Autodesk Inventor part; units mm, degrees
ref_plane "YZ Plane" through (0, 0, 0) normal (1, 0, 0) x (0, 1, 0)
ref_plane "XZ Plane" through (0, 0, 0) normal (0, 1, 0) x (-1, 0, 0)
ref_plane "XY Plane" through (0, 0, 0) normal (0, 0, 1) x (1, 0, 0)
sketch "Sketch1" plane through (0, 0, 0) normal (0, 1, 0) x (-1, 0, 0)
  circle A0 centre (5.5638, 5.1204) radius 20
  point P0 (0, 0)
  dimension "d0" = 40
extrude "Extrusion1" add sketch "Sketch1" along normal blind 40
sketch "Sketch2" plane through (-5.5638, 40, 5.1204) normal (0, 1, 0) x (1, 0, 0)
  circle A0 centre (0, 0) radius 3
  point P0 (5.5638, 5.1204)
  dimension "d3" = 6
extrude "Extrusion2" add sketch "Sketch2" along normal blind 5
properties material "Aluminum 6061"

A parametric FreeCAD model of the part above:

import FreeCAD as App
import Part
import Sketcher

V = App.Vector

doc = App.newDocument("Part")
params = doc.addObject("Spreadsheet::Sheet", "Params")
for row, (alias, value) in enumerate([
    ("sketch1_diameter", "40 mm"),
    ("pad1_length", "40 mm"),
    ("sketch2_diameter", "6 mm"),
    ("pad2_length", "5 mm"),
], start=1):
    params.set(f"A{row}", alias)
    params.set(f"B{row}", "=" + value)
    params.setAlias(f"B{row}", alias)

body = doc.addObject("PartDesign::Body", "Body")

# Sketch on XZ plane
sketch1 = body.newObject("Sketcher::SketchObject", "Sketch")
sketch1.AttachmentSupport = (doc.getObject("XZ_Plane"), [""])
sketch1.MapMode = "FlatFace"
sketch1.addGeometry(Part.Circle(V(-6, 5, 0), V(0, 0, 1), 20), False)
sketch1.addConstraint(Sketcher.Constraint("Diameter", 0, 40.0))
sketch1.addConstraint(Sketcher.Constraint("DistanceX", 0, 3, -1, 1, 5.5638))
sketch1.addConstraint(Sketcher.Constraint("DistanceY", -1, 1, 0, 3, 5.1204))
sketch1.setExpression("Constraints[0]", "Params.sketch1_diameter")
pad1 = body.newObject("PartDesign::Pad", "Pad")
pad1.Profile = sketch1
pad1.setExpression("Length", "Params.pad1_length")
pad1.Reversed = True

# Sketch on XZ plane
sketch2 = body.newObject("Sketcher::SketchObject", "Sketch001")
sketch2.AttachmentSupport = (doc.getObject("XZ_Plane"), [""])
sketch2.MapMode = "FlatFace"
sketch2.AttachmentOffset = App.Placement(V(0, 0, -40), App.Rotation())
sketch2.addGeometry(Part.Circle(V(-5.6, 5.1, 0), V(0, 0, 1), 3), False)
sketch2.addConstraint(Sketcher.Constraint("Diameter", 0, 6.0))
sketch2.addConstraint(Sketcher.Constraint("DistanceX", 0, 3, -1, 1, 5.5638))
sketch2.addConstraint(Sketcher.Constraint("DistanceY", -1, 1, 0, 3, 5.1204))
sketch2.setExpression("Constraints[0]", "Params.sketch2_diameter")
pad2 = body.newObject("PartDesign::Pad", "Pad001")
pad2.Profile = sketch2
pad2.setExpression("Length", "Params.pad2_length")
pad2.Reversed = True

doc.recompute()
